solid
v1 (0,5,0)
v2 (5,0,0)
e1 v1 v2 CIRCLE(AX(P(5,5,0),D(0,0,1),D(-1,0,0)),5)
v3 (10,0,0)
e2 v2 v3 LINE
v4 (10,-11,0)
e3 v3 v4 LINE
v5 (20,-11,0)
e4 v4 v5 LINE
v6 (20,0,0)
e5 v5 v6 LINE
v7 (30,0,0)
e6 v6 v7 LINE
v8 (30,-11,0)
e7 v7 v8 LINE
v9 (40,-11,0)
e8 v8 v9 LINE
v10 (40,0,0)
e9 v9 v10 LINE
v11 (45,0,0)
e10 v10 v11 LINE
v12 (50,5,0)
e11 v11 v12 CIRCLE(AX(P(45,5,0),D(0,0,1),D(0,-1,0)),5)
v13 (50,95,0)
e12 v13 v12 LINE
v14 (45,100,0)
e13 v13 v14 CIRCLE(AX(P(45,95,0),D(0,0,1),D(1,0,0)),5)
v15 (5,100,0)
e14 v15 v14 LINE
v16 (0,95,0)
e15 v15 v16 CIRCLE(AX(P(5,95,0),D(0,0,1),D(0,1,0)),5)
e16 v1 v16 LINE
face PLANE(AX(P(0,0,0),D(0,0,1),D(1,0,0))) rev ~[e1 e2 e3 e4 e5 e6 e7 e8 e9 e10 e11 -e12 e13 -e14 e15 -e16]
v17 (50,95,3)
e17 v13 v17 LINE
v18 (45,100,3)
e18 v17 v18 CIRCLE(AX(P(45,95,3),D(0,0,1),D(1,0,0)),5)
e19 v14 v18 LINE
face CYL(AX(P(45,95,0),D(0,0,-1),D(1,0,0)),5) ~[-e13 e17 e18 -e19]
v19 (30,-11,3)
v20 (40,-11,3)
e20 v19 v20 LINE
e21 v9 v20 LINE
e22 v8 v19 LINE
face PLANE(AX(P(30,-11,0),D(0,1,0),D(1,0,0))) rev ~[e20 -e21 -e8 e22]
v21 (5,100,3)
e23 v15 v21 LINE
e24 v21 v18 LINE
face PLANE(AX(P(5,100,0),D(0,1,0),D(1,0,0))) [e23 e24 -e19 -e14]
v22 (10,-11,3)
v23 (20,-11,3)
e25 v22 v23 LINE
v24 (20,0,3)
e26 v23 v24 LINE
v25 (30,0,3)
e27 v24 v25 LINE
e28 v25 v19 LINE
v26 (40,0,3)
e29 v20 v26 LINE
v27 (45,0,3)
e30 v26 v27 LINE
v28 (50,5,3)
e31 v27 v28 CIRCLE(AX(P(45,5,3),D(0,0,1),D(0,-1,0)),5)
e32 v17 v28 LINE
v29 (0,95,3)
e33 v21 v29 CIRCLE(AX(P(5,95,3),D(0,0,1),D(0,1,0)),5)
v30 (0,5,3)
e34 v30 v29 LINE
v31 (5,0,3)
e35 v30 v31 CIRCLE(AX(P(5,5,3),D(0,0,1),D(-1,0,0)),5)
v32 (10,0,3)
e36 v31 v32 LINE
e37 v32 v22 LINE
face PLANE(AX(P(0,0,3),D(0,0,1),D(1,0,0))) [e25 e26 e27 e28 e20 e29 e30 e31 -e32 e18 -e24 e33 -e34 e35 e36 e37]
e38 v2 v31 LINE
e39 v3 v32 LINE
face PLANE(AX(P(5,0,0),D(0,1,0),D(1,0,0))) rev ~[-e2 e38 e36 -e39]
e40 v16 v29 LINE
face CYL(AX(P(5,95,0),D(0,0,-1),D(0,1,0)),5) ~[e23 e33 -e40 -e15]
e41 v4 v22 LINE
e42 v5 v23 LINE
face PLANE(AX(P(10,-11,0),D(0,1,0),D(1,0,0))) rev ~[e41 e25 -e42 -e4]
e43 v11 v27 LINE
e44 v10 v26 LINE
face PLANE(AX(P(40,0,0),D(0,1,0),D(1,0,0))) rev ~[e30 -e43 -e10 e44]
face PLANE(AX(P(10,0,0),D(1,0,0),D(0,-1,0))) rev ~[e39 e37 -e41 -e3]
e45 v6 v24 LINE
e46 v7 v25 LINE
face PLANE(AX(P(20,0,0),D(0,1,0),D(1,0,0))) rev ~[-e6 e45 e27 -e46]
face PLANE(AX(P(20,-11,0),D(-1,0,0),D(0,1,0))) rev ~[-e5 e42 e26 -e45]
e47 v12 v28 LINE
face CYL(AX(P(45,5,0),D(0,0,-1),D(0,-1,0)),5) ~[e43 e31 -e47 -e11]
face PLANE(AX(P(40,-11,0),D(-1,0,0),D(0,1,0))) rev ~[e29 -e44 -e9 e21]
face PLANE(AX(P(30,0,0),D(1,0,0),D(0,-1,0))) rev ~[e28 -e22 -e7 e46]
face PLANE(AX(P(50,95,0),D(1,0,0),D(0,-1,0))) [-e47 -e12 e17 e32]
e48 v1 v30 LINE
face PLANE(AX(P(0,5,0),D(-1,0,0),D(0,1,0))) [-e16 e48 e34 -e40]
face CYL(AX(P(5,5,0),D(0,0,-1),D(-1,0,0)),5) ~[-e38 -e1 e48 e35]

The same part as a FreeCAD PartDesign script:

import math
import FreeCAD as App
import Part
import Sketcher

V = App.Vector
Q = App.Units.Quantity

doc = App.newDocument("Part")
params = doc.addObject("Spreadsheet::Sheet", "Params")
for row, (alias, value) in enumerate([
    ("sketch1_radius", "5 mm"),
    ("sketch1_width", "5 mm"),
    ("sketch1_width2", "10 mm"),
    ("sketch1_height", "11 mm"),
    ("pad1_length", "3 mm"),
], start=1):
    params.set(f"A{row}", alias)
    params.set(f"B{row}", "=" + value)
    params.setAlias(f"B{row}", alias)

body = doc.addObject("PartDesign::Body", "Body")

# Sketch on XY plane
sketch1 = doc.addObject("Sketcher::SketchObject", "Sketch")
body.addObject(sketch1)
sketch1.AttachmentSupport = (doc.XY_Plane, [""])
sketch1.MapMode = "FlatFace"
sketch1.addGeometry([
    Part.LineSegment(V(0, 95, 0), V(0, 5, 0)),  # 0
    Part.ArcOfCircle(Part.Circle(V(5, 5, 0), V(0, 0, 1), 5), math.radians(180), math.radians(270)),  # 1
    Part.LineSegment(V(5, 0, 0), V(10, 0, 0)),  # 2
    Part.LineSegment(V(10, 0, 0), V(10, -11, 0)),  # 3
    Part.LineSegment(V(10, -11, 0), V(20, -11, 0)),  # 4
    Part.LineSegment(V(20, -11, 0), V(20, 0, 0)),  # 5
    Part.LineSegment(V(20, 0, 0), V(30, 0, 0)),  # 6
    Part.LineSegment(V(30, 0, 0), V(30, -11, 0)),  # 7
    Part.LineSegment(V(30, -11, 0), V(40, -11, 0)),  # 8
    Part.LineSegment(V(40, -11, 0), V(40, 0, 0)),  # 9
    Part.LineSegment(V(40, 0, 0), V(45, 0, 0)),  # 10
    Part.ArcOfCircle(Part.Circle(V(45, 5, 0), V(0, 0, 1), 5), math.radians(-90), math.radians(0)),  # 11
    Part.LineSegment(V(50, 5, 0), V(50, 95, 0)),  # 12
    Part.ArcOfCircle(Part.Circle(V(45, 95, 0), V(0, 0, 1), 5), math.radians(0), math.radians(90)),  # 13
    Part.LineSegment(V(45, 100, 0), V(5, 100, 0)),  # 14
    Part.ArcOfCircle(Part.Circle(V(5, 95, 0), V(0, 0, 1), 5), math.radians(90), math.radians(180)),  # 15
], False)
sketch1.addConstraint([
    Sketcher.Constraint("Tangent", 0, 2, 1, 1),
    Sketcher.Constraint("Tangent", 1, 2, 2, 1),
    Sketcher.Constraint("Coincident", 2, 2, 3, 1),
    Sketcher.Constraint("Coincident", 3, 2, 4, 1),
    Sketcher.Constraint("Coincident", 4, 2, 5, 1),
    Sketcher.Constraint("Coincident", 5, 2, 6, 1),
    Sketcher.Constraint("Coincident", 6, 2, 7, 1),
    Sketcher.Constraint("Coincident", 7, 2, 8, 1),
    Sketcher.Constraint("Coincident", 8, 2, 9, 1),
    Sketcher.Constraint("Coincident", 9, 2, 10, 1),
    Sketcher.Constraint("Tangent", 10, 2, 11, 1),
    Sketcher.Constraint("Tangent", 11, 2, 12, 1),
    Sketcher.Constraint("Tangent", 12, 2, 13, 1),
    Sketcher.Constraint("Tangent", 13, 2, 14, 1),
    Sketcher.Constraint("Tangent", 14, 2, 15, 1),
    Sketcher.Constraint("Tangent", 15, 2, 0, 1),
    Sketcher.Constraint("Vertical", 0),
    Sketcher.Constraint("Horizontal", 2),
    Sketcher.Constraint("Vertical", 3),
    Sketcher.Constraint("Horizontal", 4),
    Sketcher.Constraint("Vertical", 5),
    Sketcher.Constraint("Horizontal", 6),
    Sketcher.Constraint("Vertical", 7),
    Sketcher.Constraint("Horizontal", 8),
    Sketcher.Constraint("Vertical", 9),
    Sketcher.Constraint("Horizontal", 10),
    Sketcher.Constraint("Vertical", 12),
    Sketcher.Constraint("Horizontal", 14),
    Sketcher.Constraint("Equal", 1, 11),
    Sketcher.Constraint("Equal", 11, 13),
    Sketcher.Constraint("Equal", 13, 15),
    Sketcher.Constraint("PointOnObject", 0, 2, -2),
    Sketcher.Constraint("PointOnObject", 1, 2, -1),
    Sketcher.Constraint("PointOnObject", 5, 2, -1),
    Sketcher.Constraint("PointOnObject", 9, 2, -1),
    Sketcher.Constraint("Horizontal", 4, 2, 7, 2),
    Sketcher.Constraint("Equal", 4, 6),
    Sketcher.Constraint("Equal", 6, 8),
    Sketcher.Constraint("Equal", 2, 10),
    Sketcher.Constraint("Radius", 1, Q("5 mm")),
    Sketcher.Constraint("DistanceX", 2, 1, 2, 2, Q("5 mm")),
    Sketcher.Constraint("DistanceX", 4, 1, 4, 2, Q("10 mm")),
    Sketcher.Constraint("DistanceY", 3, 2, 3, 1, Q("11 mm")),
    Sketcher.Constraint("DistanceY", -1, 1, 13, 2, Q("100 mm")),
])
sketch1.setExpression("Constraints[39]", "Params.sketch1_radius")
sketch1.setExpression("Constraints[40]", "Params.sketch1_width")
sketch1.setExpression("Constraints[41]", "Params.sketch1_width2")
sketch1.setExpression("Constraints[42]", "Params.sketch1_height")
pad1 = doc.addObject("PartDesign::Pad", "Pad")
body.addObject(pad1)
pad1.Profile = sketch1
pad1.setExpression("Length", "Params.pad1_length")

doc.recompute()
